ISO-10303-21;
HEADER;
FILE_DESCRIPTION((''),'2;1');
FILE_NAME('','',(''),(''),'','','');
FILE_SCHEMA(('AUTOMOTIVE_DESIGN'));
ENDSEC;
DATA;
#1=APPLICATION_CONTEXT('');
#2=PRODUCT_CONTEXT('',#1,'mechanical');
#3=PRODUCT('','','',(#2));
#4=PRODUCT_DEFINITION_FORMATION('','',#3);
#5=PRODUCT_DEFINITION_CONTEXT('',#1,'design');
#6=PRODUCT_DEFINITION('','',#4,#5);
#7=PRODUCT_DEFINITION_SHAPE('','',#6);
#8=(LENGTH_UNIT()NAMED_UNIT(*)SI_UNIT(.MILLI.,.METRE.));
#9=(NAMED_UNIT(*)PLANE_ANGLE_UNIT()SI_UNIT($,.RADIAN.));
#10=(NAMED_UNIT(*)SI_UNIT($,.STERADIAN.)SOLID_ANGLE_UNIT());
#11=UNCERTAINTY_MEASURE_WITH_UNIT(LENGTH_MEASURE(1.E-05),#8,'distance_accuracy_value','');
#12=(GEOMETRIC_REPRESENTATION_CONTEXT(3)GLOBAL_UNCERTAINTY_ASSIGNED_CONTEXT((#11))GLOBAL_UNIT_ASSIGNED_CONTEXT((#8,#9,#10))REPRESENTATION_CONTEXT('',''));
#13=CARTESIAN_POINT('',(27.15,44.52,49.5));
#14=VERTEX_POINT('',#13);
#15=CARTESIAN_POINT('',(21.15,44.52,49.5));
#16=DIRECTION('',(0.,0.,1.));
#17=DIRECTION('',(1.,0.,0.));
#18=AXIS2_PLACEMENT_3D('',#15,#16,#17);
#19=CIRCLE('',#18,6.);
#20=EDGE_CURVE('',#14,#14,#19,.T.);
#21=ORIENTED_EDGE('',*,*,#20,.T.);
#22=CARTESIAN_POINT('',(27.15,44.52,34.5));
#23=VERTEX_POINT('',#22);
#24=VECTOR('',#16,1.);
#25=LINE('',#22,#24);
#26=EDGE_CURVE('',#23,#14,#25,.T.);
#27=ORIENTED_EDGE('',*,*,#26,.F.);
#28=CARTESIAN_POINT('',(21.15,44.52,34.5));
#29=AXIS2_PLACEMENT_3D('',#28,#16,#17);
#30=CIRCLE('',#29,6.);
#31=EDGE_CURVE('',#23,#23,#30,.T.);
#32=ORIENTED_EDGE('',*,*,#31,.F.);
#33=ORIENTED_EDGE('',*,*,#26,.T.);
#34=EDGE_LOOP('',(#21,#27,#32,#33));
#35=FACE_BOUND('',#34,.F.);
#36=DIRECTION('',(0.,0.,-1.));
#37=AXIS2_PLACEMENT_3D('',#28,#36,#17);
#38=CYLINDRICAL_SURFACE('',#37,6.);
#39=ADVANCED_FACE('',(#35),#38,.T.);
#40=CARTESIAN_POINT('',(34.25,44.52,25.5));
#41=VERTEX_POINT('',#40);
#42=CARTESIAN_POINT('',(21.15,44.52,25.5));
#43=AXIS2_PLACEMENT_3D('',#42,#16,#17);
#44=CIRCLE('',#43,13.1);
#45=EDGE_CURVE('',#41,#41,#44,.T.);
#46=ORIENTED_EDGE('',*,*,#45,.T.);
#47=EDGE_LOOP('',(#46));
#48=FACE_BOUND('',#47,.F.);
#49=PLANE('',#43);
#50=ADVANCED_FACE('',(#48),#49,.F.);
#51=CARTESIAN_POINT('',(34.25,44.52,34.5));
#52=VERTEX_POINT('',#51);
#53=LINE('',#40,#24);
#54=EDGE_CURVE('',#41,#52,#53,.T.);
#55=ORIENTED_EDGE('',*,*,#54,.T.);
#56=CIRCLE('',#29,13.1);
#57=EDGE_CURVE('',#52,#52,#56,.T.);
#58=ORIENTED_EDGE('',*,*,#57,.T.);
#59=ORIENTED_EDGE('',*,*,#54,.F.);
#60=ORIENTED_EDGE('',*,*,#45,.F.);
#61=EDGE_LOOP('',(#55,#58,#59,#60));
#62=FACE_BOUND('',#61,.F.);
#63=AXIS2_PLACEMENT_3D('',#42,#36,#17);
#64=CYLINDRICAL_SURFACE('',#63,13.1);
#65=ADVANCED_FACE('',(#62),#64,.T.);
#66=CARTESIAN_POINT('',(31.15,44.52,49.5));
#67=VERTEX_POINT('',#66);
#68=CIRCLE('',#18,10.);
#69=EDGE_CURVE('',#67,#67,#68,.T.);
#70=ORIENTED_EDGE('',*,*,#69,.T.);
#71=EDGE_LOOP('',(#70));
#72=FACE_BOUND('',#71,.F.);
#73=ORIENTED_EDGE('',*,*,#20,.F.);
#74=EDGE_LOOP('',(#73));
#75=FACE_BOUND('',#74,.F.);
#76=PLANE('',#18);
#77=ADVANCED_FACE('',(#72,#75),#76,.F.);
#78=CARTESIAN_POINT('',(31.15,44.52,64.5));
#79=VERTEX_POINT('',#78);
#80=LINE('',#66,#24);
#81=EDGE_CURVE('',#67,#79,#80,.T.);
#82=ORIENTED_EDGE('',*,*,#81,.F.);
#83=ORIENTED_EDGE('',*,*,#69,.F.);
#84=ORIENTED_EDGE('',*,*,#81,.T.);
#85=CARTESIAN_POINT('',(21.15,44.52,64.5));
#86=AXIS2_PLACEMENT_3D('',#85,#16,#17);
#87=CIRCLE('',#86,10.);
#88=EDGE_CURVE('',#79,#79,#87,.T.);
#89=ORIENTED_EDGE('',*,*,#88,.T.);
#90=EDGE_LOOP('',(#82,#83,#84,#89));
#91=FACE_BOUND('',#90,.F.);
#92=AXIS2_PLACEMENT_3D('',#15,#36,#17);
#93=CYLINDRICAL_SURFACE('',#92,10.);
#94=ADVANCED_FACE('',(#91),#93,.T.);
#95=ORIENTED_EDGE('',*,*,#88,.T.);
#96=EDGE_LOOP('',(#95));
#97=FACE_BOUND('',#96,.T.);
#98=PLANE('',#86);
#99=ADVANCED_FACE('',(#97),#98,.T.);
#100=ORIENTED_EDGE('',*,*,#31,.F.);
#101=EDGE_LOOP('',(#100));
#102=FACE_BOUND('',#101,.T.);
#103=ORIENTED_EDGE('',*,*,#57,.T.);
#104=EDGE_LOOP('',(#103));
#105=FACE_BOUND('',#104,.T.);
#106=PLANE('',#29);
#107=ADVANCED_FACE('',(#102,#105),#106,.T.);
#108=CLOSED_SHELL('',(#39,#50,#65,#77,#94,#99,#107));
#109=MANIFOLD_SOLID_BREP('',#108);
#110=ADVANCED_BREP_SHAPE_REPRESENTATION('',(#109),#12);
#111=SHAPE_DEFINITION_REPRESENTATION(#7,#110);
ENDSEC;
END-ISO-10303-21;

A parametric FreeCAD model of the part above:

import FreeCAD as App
import Part
import Sketcher
from FreeCAD import Vector
Q = App.Units.Quantity

doc = App.newDocument("Part")
body = doc.addObject("PartDesign::Body", "Body")

# Sketch on XY plane
sketch1 = body.newObject("Sketcher::SketchObject", "Sketch")
sketch1.AttachmentSupport = (doc.getObject("XY_Plane"), [""])
sketch1.MapMode = "FlatFace"
sketch1.AttachmentOffset = App.Placement(Vector(0, 0, 49.5), App.Rotation())
sketch1.addGeometry(Part.Circle(Vector(21.15, 44.52, 0), Vector(0, 0, 1), 10), False)
sketch1.addConstraint(Sketcher.Constraint("Diameter", 0, Q("20 mm")))
sketch1.addConstraint(Sketcher.Constraint("DistanceX", -1, 1, 0, 3, Q("21.15 mm")))
sketch1.addConstraint(Sketcher.Constraint("DistanceY", -1, 1, 0, 3, Q("44.52 mm")))
pad1 = body.newObject("PartDesign::Pad", "Pad")
pad1.Profile = sketch1
pad1.Length = 15
body2 = doc.addObject("PartDesign::Body", "Body001")

# Sketch on XY plane
sketch2 = body2.newObject("Sketcher::SketchObject", "Sketch001")
sketch2.AttachmentSupport = (doc.getObject("XY_Plane001"), [""])
sketch2.MapMode = "FlatFace"
sketch2.AttachmentOffset = App.Placement(Vector(0, 0, 34.5), App.Rotation())
sketch2.addGeometry(Part.Circle(Vector(21.15, 44.52, 0), Vector(0, 0, 1), 6), False)
sketch2.addConstraint(Sketcher.Constraint("Diameter", 0, Q("12 mm")))
sketch2.addConstraint(Sketcher.Constraint("DistanceX", -1, 1, 0, 3, Q("21.15 mm")))
sketch2.addConstraint(Sketcher.Constraint("DistanceY", -1, 1, 0, 3, Q("44.52 mm")))
pad2 = body2.newObject("PartDesign::Pad", "Pad001")
pad2.Profile = sketch2
pad2.Length = 15
body3 = doc.addObject("PartDesign::Body", "Body002")
body3.AllowCompound = True

# Sketch on XY plane
sketch3 = body3.newObject("Sketcher::SketchObject", "Sketch002")
sketch3.AttachmentSupport = (doc.getObject("XY_Plane002"), [""])
sketch3.MapMode = "FlatFace"
sketch3.AttachmentOffset = App.Placement(Vector(0, 0, 25.5), App.Rotation())
sketch3.addGeometry(Part.Circle(Vector(21.15, 44.52, 0), Vector(0, 0, 1), 13.1), False)
sketch3.addConstraint(Sketcher.Constraint("Diameter", 0, Q("26.2 mm")))
sketch3.addConstraint(Sketcher.Constraint("DistanceX", -1, 1, 0, 3, Q("21.15 mm")))
sketch3.addConstraint(Sketcher.Constraint("DistanceY", -1, 1, 0, 3, Q("44.52 mm")))
pad3 = body3.newObject("PartDesign::Pad", "Pad002")
pad3.Profile = sketch3
pad3.Length = 9
doc.recompute()

boolean = body3.newObject("PartDesign::Boolean", "Boolean")
boolean.Type = "Fuse"
boolean.addObjects([body])
doc.recompute()

boolean2 = body3.newObject("PartDesign::Boolean", "Boolean001")
boolean2.Type = "Fuse"
boolean2.addObjects([body2])

doc.recompute()
